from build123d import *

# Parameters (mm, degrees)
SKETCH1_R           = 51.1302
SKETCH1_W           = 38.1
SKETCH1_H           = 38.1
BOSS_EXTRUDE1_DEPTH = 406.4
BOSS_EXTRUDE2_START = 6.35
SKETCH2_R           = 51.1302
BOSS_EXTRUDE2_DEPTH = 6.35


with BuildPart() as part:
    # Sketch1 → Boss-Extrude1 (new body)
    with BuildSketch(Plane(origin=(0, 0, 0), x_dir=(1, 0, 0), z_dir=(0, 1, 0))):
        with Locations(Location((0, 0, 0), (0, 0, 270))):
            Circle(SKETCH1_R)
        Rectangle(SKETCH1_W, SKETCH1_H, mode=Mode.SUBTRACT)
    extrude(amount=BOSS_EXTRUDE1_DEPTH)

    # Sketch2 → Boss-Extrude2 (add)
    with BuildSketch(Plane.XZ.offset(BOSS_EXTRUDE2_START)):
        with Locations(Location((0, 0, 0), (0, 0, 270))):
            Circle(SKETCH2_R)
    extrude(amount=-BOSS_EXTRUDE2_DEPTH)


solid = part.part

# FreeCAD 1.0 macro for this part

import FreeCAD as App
import Part
import Sketcher
Q = App.Units.Quantity

doc = App.newDocument("Part")
body = doc.addObject("PartDesign::Body", "Body")

sketch1 = body.newObject("Sketcher::SketchObject", "Sketch")
sketch1.AttachmentSupport = (doc.getObject("XZ_Plane"), [""])
sketch1.MapMode = "FlatFace"
sketch1.addGeometry([
    Part.Circle(App.Vector(0, 0, 0), App.Vector(0, 0, 1), 51),
    Part.LineSegment(App.Vector(19, 19, 0), App.Vector(-19, 19, 0)),
    Part.LineSegment(App.Vector(-19, 19, 0), App.Vector(-19, -19, 0)),
    Part.LineSegment(App.Vector(-19, -19, 0), App.Vector(19, -19, 0)),
    Part.LineSegment(App.Vector(19, -19, 0), App.Vector(19, 19, 0)),
], False)
sketch1.addConstraint([
    Sketcher.Constraint("Coincident", 1, 2, 2, 1),
    Sketcher.Constraint("Coincident", 2, 2, 3, 1),
    Sketcher.Constraint("Coincident", 3, 2, 4, 1),
    Sketcher.Constraint("Coincident", 4, 2, 1, 1),
    Sketcher.Constraint("Horizontal", 1),
    Sketcher.Constraint("Vertical", 2),
    Sketcher.Constraint("Horizontal", 3),
    Sketcher.Constraint("Vertical", 4),
    Sketcher.Constraint("Coincident", 0, 3, -1, 1),
    Sketcher.Constraint("Symmetric", 1, 2, 3, 2, -1, 1),
    Sketcher.Constraint("Equal", 3, 2),
    Sketcher.Constraint("Diameter", 0, Q("4.026 in")),
    Sketcher.Constraint("DistanceX", 1, 2, 1, 1, Q("1.5 in")),
])
pad1 = body.newObject("PartDesign::Pad", "Pad")
pad1.Profile = sketch1
pad1.Length = Q("16 in")
pad1.Reversed = True

sketch2 = body.newObject("Sketcher::SketchObject", "Sketch001")
sketch2.AttachmentSupport = (doc.getObject("XZ_Plane"), [""])
sketch2.MapMode = "FlatFace"
sketch2.AttachmentOffset = App.Placement(App.Vector(0, 0, 0.25 * 25.4), App.Rotation())
sketch2.addGeometry(Part.Circle(App.Vector(0, 0, 0), App.Vector(0, 0, 1), 51), False)
sketch2.addConstraint([
    Sketcher.Constraint("Coincident", 0, 3, -1, 1),
    Sketcher.Constraint("Diameter", 0, Q("4.026 in")),
])
pad2 = body.newObject("PartDesign::Pad", "Pad001")
pad2.Profile = sketch2
pad2.Length = Q("0.25 in")
pad2.Reversed = True

doc.recompute()
